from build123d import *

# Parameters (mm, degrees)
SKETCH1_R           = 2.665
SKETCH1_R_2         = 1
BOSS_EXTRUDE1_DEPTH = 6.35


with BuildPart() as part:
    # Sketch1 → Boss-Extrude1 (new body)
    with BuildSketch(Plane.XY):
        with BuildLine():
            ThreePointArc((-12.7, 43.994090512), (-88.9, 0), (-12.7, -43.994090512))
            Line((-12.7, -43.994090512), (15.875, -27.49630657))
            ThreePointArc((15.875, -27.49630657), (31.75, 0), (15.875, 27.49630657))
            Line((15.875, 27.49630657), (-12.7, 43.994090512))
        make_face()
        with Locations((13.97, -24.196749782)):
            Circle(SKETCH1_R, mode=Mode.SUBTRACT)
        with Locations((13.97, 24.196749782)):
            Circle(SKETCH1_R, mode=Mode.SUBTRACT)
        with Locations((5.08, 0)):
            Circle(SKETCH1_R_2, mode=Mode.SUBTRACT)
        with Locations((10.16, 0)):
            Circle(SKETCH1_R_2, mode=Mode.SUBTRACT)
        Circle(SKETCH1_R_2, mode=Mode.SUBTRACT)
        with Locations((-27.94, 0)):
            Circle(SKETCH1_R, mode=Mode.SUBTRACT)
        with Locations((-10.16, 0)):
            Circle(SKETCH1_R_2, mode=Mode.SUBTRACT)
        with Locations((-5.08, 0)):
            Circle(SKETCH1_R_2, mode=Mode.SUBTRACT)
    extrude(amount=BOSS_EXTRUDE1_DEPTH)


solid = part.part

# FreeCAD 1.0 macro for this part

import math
import FreeCAD as App
import Part
import Sketcher

V = App.Vector
Q = App.Units.Quantity

doc = App.newDocument("Part")
body = doc.addObject("PartDesign::Body", "Body")

# Sketch on XY plane
sketch1 = doc.addObject("Sketcher::SketchObject", "Sketch")
body.addObject(sketch1)
sketch1.AttachmentSupport = (doc.XY_Plane, [""])
sketch1.MapMode = "FlatFace"
sketch1.addGeometry(Part.ArcOfCircle(Part.Circle(V(-38.1, 0, 0), V(0, 0, 1), 50.8), math.radians(60), math.radians(300)), False)
sketch1.addGeometry(Part.LineSegment(V(-12.7, -43.994091, 0), V(15.875, -27.496307, 0)), False)
sketch1.addGeometry(Part.ArcOfCircle(Part.Circle(V(0, 0, 0), V(0, 0, 1), 31.75), math.radians(-60), math.radians(60)), False)
sketch1.addGeometry(Part.LineSegment(V(15.875, 27.496307, 0), V(-12.7, 43.994091, 0)), False)
sketch1.addGeometry(Part.Circle(V(13.97, -24.19675, 0), V(0, 0, 1), 2.665), False)
sketch1.addGeometry(Part.Circle(V(-27.94, 0, 0), V(0, 0, 1), 2.665), False)
sketch1.addGeometry(Part.Circle(V(-10.16, 0, 0), V(0, 0, 1), 1), False)
sketch1.addGeometry(Part.Circle(V(-5.08, 0, 0), V(0, 0, 1), 1), False)
sketch1.addGeometry(Part.Circle(V(0, 0, 0), V(0, 0, 1), 1), False)
sketch1.addGeometry(Part.Circle(V(5.08, 0, 0), V(0, 0, 1), 1), False)
sketch1.addGeometry(Part.Circle(V(10.16, 0, 0), V(0, 0, 1), 1), False)
sketch1.addGeometry(Part.Circle(V(13.97, 24.19675, 0), V(0, 0, 1), 2.665), False)
sketch1.addConstraint(Sketcher.Constraint("Tangent", 0, 2, 1, 1))
sketch1.addConstraint(Sketcher.Constraint("Tangent", 1, 2, 2, 1))
sketch1.addConstraint(Sketcher.Constraint("Tangent", 2, 2, 3, 1))
sketch1.addConstraint(Sketcher.Constraint("Tangent", 3, 2, 0, 1))
sketch1.addConstraint(Sketcher.Constraint("Coincident", 2, 3, -1, 1))
sketch1.addConstraint(Sketcher.Constraint("Coincident", 8, 3, -1, 1))
sketch1.addConstraint(Sketcher.Constraint("Equal", 4, 5))
sketch1.addConstraint(Sketcher.Constraint("Equal", 6, 7))
sketch1.addConstraint(Sketcher.Constraint("Equal", 7, 8))
sketch1.addConstraint(Sketcher.Constraint("Equal", 8, 9))
sketch1.addConstraint(Sketcher.Constraint("Equal", 9, 10))
sketch1.addConstraint(Sketcher.Constraint("Equal", 5, 11))
sketch1.addConstraint(Sketcher.Constraint("Symmetric", 7, 3, 9, 3, -1, 1))
sketch1.addConstraint(Sketcher.Constraint("Symmetric", 6, 3, 10, 3, -1, 1))
sketch1.addConstraint(Sketcher.Constraint("Symmetric", 4, 3, 11, 3, -1))
sketch1.addConstraint(Sketcher.Constraint("PointOnObject", 0, 3, -1))
sketch1.addConstraint(Sketcher.Constraint("PointOnObject", 5, 3, -1))
sketch1.addConstraint(Sketcher.Constraint("PointOnObject", 6, 3, -1))
sketch1.addConstraint(Sketcher.Constraint("PointOnObject", 7, 3, -1))
sketch1.addConstraint(Sketcher.Constraint("Radius", 0, Q("2 in")))
sketch1.addConstraint(Sketcher.Constraint("Radius", 2, Q("1.25 in")))
sketch1.addConstraint(Sketcher.Constraint("Angle", 1, Q("30 deg")))
sketch1.addConstraint(Sketcher.Constraint("DistanceX", 5, 3, -1, 1, Q("1.1 in")))
sketch1.addConstraint(Sketcher.Constraint("DistanceX", 6, 3, -1, 1, Q("0.4 in")))
sketch1.addConstraint(Sketcher.Constraint("DistanceX", 7, 3, -1, 1, Q("0.2 in")))
sketch1.addConstraint(Sketcher.Constraint("Diameter", 4, 5.33))
sketch1.addConstraint(Sketcher.Constraint("Diameter", 6, 2.0))
sketch1.addConstraint(Sketcher.Constraint("DistanceX", -1, 1, 4, 3, Q("0.55 in")))
sketch1.addConstraint(Sketcher.Constraint("DistanceY", 4, 3, -1, 1, 24.19675))
pad1 = doc.addObject("PartDesign::Pad", "Pad")
body.addObject(pad1)
pad1.Profile = sketch1
pad1.Length = Q("0.25 in")

doc.recompute()
